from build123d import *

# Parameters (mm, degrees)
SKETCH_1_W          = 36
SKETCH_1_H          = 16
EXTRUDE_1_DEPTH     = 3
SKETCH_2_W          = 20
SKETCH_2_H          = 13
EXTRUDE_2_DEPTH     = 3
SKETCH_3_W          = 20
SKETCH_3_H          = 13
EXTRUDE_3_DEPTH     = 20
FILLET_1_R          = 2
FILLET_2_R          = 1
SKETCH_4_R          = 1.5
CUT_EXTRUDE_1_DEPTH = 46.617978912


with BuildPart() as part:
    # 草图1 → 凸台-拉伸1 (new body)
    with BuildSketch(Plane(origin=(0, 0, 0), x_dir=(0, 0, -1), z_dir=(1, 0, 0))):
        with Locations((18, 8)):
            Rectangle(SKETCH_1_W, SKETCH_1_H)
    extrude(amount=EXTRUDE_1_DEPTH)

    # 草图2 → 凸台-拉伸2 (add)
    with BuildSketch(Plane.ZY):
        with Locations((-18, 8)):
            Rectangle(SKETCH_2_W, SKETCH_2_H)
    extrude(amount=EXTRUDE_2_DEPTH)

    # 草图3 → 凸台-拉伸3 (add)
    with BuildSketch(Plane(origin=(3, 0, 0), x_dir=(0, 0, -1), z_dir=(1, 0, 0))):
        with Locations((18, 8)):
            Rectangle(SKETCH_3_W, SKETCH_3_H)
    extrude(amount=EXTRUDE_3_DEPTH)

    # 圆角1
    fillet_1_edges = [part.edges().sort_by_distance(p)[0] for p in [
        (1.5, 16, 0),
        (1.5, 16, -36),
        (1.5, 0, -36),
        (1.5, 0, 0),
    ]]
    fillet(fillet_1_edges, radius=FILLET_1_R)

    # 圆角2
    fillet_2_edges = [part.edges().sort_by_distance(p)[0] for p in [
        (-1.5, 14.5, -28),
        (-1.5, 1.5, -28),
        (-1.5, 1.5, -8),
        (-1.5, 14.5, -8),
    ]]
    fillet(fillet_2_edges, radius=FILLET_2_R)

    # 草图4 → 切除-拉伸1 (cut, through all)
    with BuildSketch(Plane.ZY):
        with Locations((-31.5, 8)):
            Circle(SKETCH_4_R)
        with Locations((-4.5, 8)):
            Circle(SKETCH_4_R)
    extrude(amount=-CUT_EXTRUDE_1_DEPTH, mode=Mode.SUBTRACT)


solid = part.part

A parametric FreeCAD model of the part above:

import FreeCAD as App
import Part
import Sketcher

V = App.Vector


def edges_at(feature, points):
    """Names of the edges that pass closest to the given points."""
    edges = feature.Shape.Edges
    near = lambda p: min(range(len(edges)), key=lambda i: edges[i].distToShape(Part.Vertex(*p))[0])
    return sorted({f"Edge{near(p) + 1}" for p in points})

doc = App.newDocument("Part")
body = doc.addObject("PartDesign::Body", "Body")

# Sketch on YZ plane
sketch1 = body.newObject("Sketcher::SketchObject", "Sketch")
sketch1.AttachmentSupport = (doc.getObject("YZ_Plane"), [""])
sketch1.MapMode = "FlatFace"
sketch1.addGeometry([
    Part.LineSegment(V(16, 0, 0), V(0, 0, 0)),
    Part.LineSegment(V(0, 0, 0), V(0, -36, 0)),
    Part.LineSegment(V(0, -36, 0), V(16, -36, 0)),
    Part.LineSegment(V(16, -36, 0), V(16, 0, 0)),
], False)
sketch1.addConstraint([
    Sketcher.Constraint("Coincident", 0, 2, 1, 1),
    Sketcher.Constraint("Coincident", 1, 2, 2, 1),
    Sketcher.Constraint("Coincident", 2, 2, 3, 1),
    Sketcher.Constraint("Coincident", 3, 2, 0, 1),
    Sketcher.Constraint("Horizontal", 0),
    Sketcher.Constraint("Vertical", 1),
    Sketcher.Constraint("Horizontal", 2),
    Sketcher.Constraint("Vertical", 3),
    Sketcher.Constraint("Coincident", 0, 2, -1, 1),
    Sketcher.Constraint("DistanceX", 0, 2, 0, 1, 16.0),
    Sketcher.Constraint("DistanceY", 1, 2, 1, 1, 36.0),
])
pad1 = body.newObject("PartDesign::Pad", "Pad")
pad1.Profile = sketch1
pad1.Length = 3

# Sketch on YZ plane
sketch2 = body.newObject("Sketcher::SketchObject", "Sketch001")
sketch2.AttachmentSupport = (doc.getObject("YZ_Plane"), [""])
sketch2.MapMode = "FlatFace"
sketch2.addGeometry([
    Part.LineSegment(V(14.5, -28, 0), V(1.5, -28, 0)),
    Part.LineSegment(V(1.5, -28, 0), V(1.5, -8, 0)),
    Part.LineSegment(V(1.5, -8, 0), V(14.5, -8, 0)),
    Part.LineSegment(V(14.5, -8, 0), V(14.5, -28, 0)),
], False)
sketch2.addConstraint([
    Sketcher.Constraint("Coincident", 0, 2, 1, 1),
    Sketcher.Constraint("Coincident", 1, 2, 2, 1),
    Sketcher.Constraint("Coincident", 2, 2, 3, 1),
    Sketcher.Constraint("Coincident", 3, 2, 0, 1),
    Sketcher.Constraint("Horizontal", 0),
    Sketcher.Constraint("Vertical", 1),
    Sketcher.Constraint("Horizontal", 2),
    Sketcher.Constraint("Vertical", 3),
    Sketcher.Constraint("DistanceX", 0, 2, 0, 1, 13.0),
    Sketcher.Constraint("DistanceY", 1, 1, 1, 2, 20.0),
    Sketcher.Constraint("DistanceY", 0, 2, -1, 1, 28.0),
    Sketcher.Constraint("DistanceX", -1, 1, 0, 2, 1.5),
])
pad2 = body.newObject("PartDesign::Pad", "Pad001")
pad2.Profile = sketch2
pad2.Length = 3
pad2.Reversed = True

# Sketch on YZ plane
sketch3 = body.newObject("Sketcher::SketchObject", "Sketch002")
sketch3.AttachmentSupport = (doc.getObject("YZ_Plane"), [""])
sketch3.MapMode = "FlatFace"
sketch3.AttachmentOffset = App.Placement(V(0, 0, 3), App.Rotation())
sketch3.addGeometry([
    Part.LineSegment(V(14.5, -8, 0), V(1.5, -8, 0)),
    Part.LineSegment(V(1.5, -8, 0), V(1.5, -28, 0)),
    Part.LineSegment(V(1.5, -28, 0), V(14.5, -28, 0)),
    Part.LineSegment(V(14.5, -28, 0), V(14.5, -8, 0)),
], False)
sketch3.addConstraint([
    Sketcher.Constraint("Coincident", 0, 2, 1, 1),
    Sketcher.Constraint("Coincident", 1, 2, 2, 1),
    Sketcher.Constraint("Coincident", 2, 2, 3, 1),
    Sketcher.Constraint("Coincident", 3, 2, 0, 1),
    Sketcher.Constraint("Horizontal", 0),
    Sketcher.Constraint("Vertical", 1),
    Sketcher.Constraint("Horizontal", 2),
    Sketcher.Constraint("Vertical", 3),
    Sketcher.Constraint("DistanceX", 0, 2, 0, 1, 13.0),
    Sketcher.Constraint("DistanceY", 1, 2, 1, 1, 20.0),
    Sketcher.Constraint("DistanceY", 0, 2, -1, 1, 8.0),
    Sketcher.Constraint("DistanceX", -1, 1, 0, 2, 1.5),
])
pad3 = body.newObject("PartDesign::Pad", "Pad002")
pad3.Profile = sketch3
pad3.Length = 20
doc.recompute()

fillet = body.newObject("PartDesign::Fillet", "Fillet")
fillet.Base = (pad3, edges_at(pad3, [
    (1.5, 16, 0),
    (1.5, 16, -36),
    (1.5, 0, -36),
    (1.5, 0, 0),
]))
fillet.Radius = 2
doc.recompute()

fillet2 = body.newObject("PartDesign::Fillet", "Fillet001")
fillet2.Base = (fillet, edges_at(fillet, [
    (-1.5, 14.5, -28),
    (-1.5, 1.5, -28),
    (-1.5, 1.5, -8),
    (-1.5, 14.5, -8),
]))
fillet2.Radius = 1

# Sketch on YZ plane
sketch4 = body.newObject("Sketcher::SketchObject", "Sketch003")
sketch4.AttachmentSupport = (doc.getObject("YZ_Plane"), [""])
sketch4.MapMode = "FlatFace"
sketch4.addGeometry([
    Part.Circle(V(8, -31.5, 0), V(0, 0, 1), 1.5),
    Part.Circle(V(8, -4.5, 0), V(0, 0, 1), 1.5),
], False)
sketch4.addConstraint([
    Sketcher.Constraint("Equal", 0, 1),
    Sketcher.Constraint("Vertical", 0, 3, 1, 3),
    Sketcher.Constraint("Diameter", 0, 3.0),
    Sketcher.Constraint("DistanceX", -1, 1, 0, 3, 8.0),
    Sketcher.Constraint("DistanceY", 0, 3, 1, 3, 27.0),
    Sketcher.Constraint("DistanceY", 0, 3, -1, 1, 31.5),
])
pocket1 = body.newObject("PartDesign::Pocket", "Pocket")
pocket1.Profile = sketch4
pocket1.Type = "ThroughAll"
pocket1.Reversed = True

doc.recompute()
